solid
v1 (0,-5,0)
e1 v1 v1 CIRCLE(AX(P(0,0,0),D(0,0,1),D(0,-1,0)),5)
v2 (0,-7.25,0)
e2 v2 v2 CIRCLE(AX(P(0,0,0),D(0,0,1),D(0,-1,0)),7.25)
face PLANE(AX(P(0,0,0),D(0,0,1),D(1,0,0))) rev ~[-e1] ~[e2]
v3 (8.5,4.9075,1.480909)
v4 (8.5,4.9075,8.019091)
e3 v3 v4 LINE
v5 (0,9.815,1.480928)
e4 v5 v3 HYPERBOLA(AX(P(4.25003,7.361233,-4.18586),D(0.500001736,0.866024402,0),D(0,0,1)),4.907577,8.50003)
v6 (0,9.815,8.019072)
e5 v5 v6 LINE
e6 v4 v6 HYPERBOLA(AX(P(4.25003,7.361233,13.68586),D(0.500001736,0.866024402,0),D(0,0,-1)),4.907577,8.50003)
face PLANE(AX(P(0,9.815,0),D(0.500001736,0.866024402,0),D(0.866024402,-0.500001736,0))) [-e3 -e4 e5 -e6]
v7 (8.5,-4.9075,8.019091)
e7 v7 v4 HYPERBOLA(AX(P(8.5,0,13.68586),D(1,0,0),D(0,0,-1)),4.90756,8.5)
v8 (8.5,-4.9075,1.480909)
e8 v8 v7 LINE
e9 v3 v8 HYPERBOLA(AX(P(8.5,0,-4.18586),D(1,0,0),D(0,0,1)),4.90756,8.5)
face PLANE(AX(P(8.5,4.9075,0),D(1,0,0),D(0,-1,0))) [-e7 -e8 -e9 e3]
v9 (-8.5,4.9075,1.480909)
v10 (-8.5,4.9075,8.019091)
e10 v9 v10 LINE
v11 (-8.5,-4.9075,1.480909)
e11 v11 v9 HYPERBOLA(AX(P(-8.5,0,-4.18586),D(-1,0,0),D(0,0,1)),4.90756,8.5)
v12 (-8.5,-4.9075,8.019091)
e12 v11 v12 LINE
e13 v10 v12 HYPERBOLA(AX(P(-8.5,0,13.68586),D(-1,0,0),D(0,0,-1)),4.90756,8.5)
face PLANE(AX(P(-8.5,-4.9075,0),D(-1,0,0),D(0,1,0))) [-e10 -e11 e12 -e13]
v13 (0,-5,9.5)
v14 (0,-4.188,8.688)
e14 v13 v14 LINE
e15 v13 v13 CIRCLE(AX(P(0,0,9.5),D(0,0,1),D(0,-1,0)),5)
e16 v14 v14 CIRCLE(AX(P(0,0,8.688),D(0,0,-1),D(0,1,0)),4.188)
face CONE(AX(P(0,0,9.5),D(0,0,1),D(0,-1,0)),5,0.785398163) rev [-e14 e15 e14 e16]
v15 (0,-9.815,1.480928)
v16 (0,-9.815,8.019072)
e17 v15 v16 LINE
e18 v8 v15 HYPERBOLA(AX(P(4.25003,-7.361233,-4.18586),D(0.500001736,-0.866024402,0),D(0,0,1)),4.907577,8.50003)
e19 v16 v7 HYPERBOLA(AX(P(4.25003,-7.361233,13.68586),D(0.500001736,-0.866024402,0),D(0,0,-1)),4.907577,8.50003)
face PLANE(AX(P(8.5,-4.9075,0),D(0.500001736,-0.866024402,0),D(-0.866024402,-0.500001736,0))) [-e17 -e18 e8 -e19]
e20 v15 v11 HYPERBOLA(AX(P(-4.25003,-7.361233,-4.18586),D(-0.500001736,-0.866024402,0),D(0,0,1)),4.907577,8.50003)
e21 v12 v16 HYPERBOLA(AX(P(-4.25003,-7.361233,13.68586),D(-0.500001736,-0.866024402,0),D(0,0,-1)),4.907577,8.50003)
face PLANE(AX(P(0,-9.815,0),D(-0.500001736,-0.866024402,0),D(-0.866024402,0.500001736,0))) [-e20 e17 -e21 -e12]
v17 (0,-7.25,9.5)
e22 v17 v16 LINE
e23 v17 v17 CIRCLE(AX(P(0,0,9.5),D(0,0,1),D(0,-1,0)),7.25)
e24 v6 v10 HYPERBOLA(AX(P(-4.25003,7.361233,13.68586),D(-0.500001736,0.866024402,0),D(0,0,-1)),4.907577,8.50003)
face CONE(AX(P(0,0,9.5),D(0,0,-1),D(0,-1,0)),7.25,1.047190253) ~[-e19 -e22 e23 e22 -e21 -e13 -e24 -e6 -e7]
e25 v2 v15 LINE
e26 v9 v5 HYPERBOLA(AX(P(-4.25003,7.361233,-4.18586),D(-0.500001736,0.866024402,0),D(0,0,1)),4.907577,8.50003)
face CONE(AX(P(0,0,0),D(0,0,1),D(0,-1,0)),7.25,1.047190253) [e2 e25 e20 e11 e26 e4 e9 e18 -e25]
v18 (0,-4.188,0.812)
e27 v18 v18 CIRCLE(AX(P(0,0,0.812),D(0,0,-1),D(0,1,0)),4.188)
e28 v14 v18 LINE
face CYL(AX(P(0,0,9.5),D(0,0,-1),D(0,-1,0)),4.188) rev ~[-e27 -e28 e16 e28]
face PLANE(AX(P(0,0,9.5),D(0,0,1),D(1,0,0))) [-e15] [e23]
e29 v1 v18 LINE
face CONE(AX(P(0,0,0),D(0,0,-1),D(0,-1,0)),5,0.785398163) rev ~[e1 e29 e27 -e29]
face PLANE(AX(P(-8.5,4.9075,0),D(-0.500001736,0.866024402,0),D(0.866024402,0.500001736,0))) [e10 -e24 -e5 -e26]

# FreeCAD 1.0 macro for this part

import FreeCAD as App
import Part
import Sketcher
Q = App.Units.Quantity

doc = App.newDocument("Part")
body = doc.addObject("PartDesign::Body", "Body")

# Sketch on XY plane
sketch1 = body.newObject("Sketcher::SketchObject", "Sketch")
sketch1.AttachmentSupport = (doc.getObject("XY_Plane"), [""])
sketch1.MapMode = "FlatFace"
sketch1.addGeometry(Part.LineSegment(App.Vector(8, 5, 0), App.Vector(0, 10, 0)), False)
sketch1.addGeometry(Part.LineSegment(App.Vector(0, 10, 0), App.Vector(-8, 5, 0)), False)
sketch1.addGeometry(Part.LineSegment(App.Vector(-8, 5, 0), App.Vector(-8, -5, 0)), False)
sketch1.addGeometry(Part.LineSegment(App.Vector(-8, -5, 0), App.Vector(0, -10, 0)), False)
sketch1.addGeometry(Part.LineSegment(App.Vector(0, -10, 0), App.Vector(8, -5, 0)), False)
sketch1.addGeometry(Part.LineSegment(App.Vector(8, -5, 0), App.Vector(8, 5, 0)), False)
sketch1.addConstraint(Sketcher.Constraint("Coincident", 0, 2, 1, 1))
sketch1.addConstraint(Sketcher.Constraint("Coincident", 1, 2, 2, 1))
sketch1.addConstraint(Sketcher.Constraint("Coincident", 2, 2, 3, 1))
sketch1.addConstraint(Sketcher.Constraint("Coincident", 3, 2, 4, 1))
sketch1.addConstraint(Sketcher.Constraint("Coincident", 4, 2, 5, 1))
sketch1.addConstraint(Sketcher.Constraint("Coincident", 5, 2, 0, 1))
sketch1.addConstraint(Sketcher.Constraint("Vertical", 2))
sketch1.addConstraint(Sketcher.Constraint("Vertical", 5))
sketch1.addConstraint(Sketcher.Constraint("Symmetric", 0, 2, 3, 2, -1, 1))
sketch1.addConstraint(Sketcher.Constraint("Symmetric", 1, 2, 4, 2, -1, 1))
sketch1.addConstraint(Sketcher.Constraint("PointOnObject", 0, 2, -2))
sketch1.addConstraint(Sketcher.Constraint("Parallel", 0, 3))
sketch1.addConstraint(Sketcher.Constraint("Horizontal", 2, 2, 4, 2))
sketch1.addConstraint(Sketcher.Constraint("DistanceX", 2, 2, 4, 2, 17.0))
sketch1.addConstraint(Sketcher.Constraint("Angle", 0, Q("150 deg")))
sketch1.addConstraint(Sketcher.Constraint("DistanceY", 2, 2, 2, 1, 9.815))
pad1 = body.newObject("PartDesign::Pad", "Pad")
pad1.Profile = sketch1
pad1.Length = 9.5

# Sketch on XY plane
sketch2 = body.newObject("Sketcher::SketchObject", "Sketch001")
sketch2.AttachmentSupport = (doc.getObject("XY_Plane"), [""])
sketch2.MapMode = "FlatFace"
sketch2.AttachmentOffset = App.Placement(App.Vector(0, 0, 9.5), App.Rotation())
sketch2.addGeometry(Part.Circle(App.Vector(0, 0, 0), App.Vector(0, 0, 1), 4.2), False)
sketch2.addConstraint(Sketcher.Constraint("Coincident", 0, 3, -1, 1))
sketch2.addConstraint(Sketcher.Constraint("Diameter", 0, 8.376))
doc.recompute()
hole = body.newObject("PartDesign::Hole", "Hole")
hole.Profile = sketch2
hole.ThreadType = "None"
hole.Diameter = 8.376
hole.DepthType = "ThroughAll"

# Sketch on YZ plane
sketch3 = body.newObject("Sketcher::SketchObject", "Sketch002")
sketch3.AttachmentSupport = (doc.getObject("YZ_Plane"), [""])
sketch3.MapMode = "FlatFace"
sketch3.addGeometry(Part.LineSegment(App.Vector(0, 10, 0), App.Vector(-5, 10, 0)), False)
sketch3.addGeometry(Part.LineSegment(App.Vector(-5, 10, 0), App.Vector(0, 4, 0)), False)
sketch3.addGeometry(Part.LineSegment(App.Vector(0, 4, 0), App.Vector(0, 10, 0)), False)
sketch3.addConstraint(Sketcher.Constraint("Coincident", 0, 2, 1, 1))
sketch3.addConstraint(Sketcher.Constraint("Coincident", 1, 2, 2, 1))
sketch3.addConstraint(Sketcher.Constraint("Coincident", 2, 2, 0, 1))
sketch3.addConstraint(Sketcher.Constraint("Horizontal", 0))
sketch3.addConstraint(Sketcher.Constraint("Vertical", 2))
sketch3.addConstraint(Sketcher.Constraint("PointOnObject", 1, 2, -2))
sketch3.addConstraint(Sketcher.Constraint("Equal", 0, 2))
sketch3.addConstraint(Sketcher.Constraint("DistanceX", 0, 2, 0, 1, 5.0))
sketch3.addConstraint(Sketcher.Constraint("DistanceY", -1, 1, 0, 2, 9.5))
groove = body.newObject("PartDesign::Groove", "Groove")
groove.Profile = sketch3
groove.ReferenceAxis = (sketch3, ["V_Axis"])
groove.Angle = 360

# Sketch on YZ plane
sketch4 = body.newObject("Sketcher::SketchObject", "Sketch003")
sketch4.AttachmentSupport = (doc.getObject("YZ_Plane"), [""])
sketch4.MapMode = "FlatFace"
sketch4.addGeometry(Part.LineSegment(App.Vector(-12.2, 6.6, 0), App.Vector(-7.2, 9.5, 0)), False)
sketch4.addGeometry(Part.LineSegment(App.Vector(-7.2, 9.5, 0), App.Vector(-12.2, 9.5, 0)), False)
sketch4.addGeometry(Part.LineSegment(App.Vector(-12.2, 9.5, 0), App.Vector(-12.2, 6.6, 0)), False)
sketch4.addConstraint(Sketcher.Constraint("Coincident", 0, 2, 1, 1))
sketch4.addConstraint(Sketcher.Constraint("Coincident", 1, 2, 2, 1))
sketch4.addConstraint(Sketcher.Constraint("Coincident", 2, 2, 0, 1))
sketch4.addConstraint(Sketcher.Constraint("Horizontal", 1))
sketch4.addConstraint(Sketcher.Constraint("Vertical", 2))
sketch4.addConstraint(Sketcher.Constraint("Angle", 0, Q("30.0004 deg")))
sketch4.addConstraint(Sketcher.Constraint("DistanceY", -1, 1, 0, 2, 9.5))
sketch4.addConstraint(Sketcher.Constraint("DistanceX", 1, 2, 1, 1, 5.0))
sketch4.addConstraint(Sketcher.Constraint("DistanceX", 0, 2, -1, 1, 7.25))
groove2 = body.newObject("PartDesign::Groove", "Groove001")
groove2.Profile = sketch4
groove2.ReferenceAxis = (sketch4, ["V_Axis"])
groove2.Angle = 360
doc.recompute()

datumplane = body.newObject("PartDesign::Plane", "DatumPlane")
datumplane.AttachmentSupport = (doc.getObject("XY_Plane"), [""])
datumplane.MapMode = "FlatFace"
datumplane.AttachmentOffset = App.Placement(App.Vector(0, 0, 4.75), App.Rotation())
mirrored = body.newObject("PartDesign::Mirrored", "Mirrored")
mirrored.Originals = [groove2]
mirrored.MirrorPlane = (datumplane, [""])
body.Tip = mirrored

# Sketch on YZ plane
sketch5 = body.newObject("Sketcher::SketchObject", "Sketch004")
sketch5.AttachmentSupport = (doc.getObject("YZ_Plane"), [""])
sketch5.MapMode = "FlatFace"
sketch5.addGeometry(Part.LineSegment(App.Vector(0, 5, 0), App.Vector(-5, 0, 0)), False)
sketch5.addGeometry(Part.LineSegment(App.Vector(-5, 0, 0), App.Vector(0, 0, 0)), False)
sketch5.addGeometry(Part.LineSegment(App.Vector(0, 0, 0), App.Vector(0, 5, 0)), False)
sketch5.addConstraint(Sketcher.Constraint("Coincident", 0, 2, 1, 1))
sketch5.addConstraint(Sketcher.Constraint("Coincident", 1, 2, 2, 1))
sketch5.addConstraint(Sketcher.Constraint("Coincident", 2, 2, 0, 1))
sketch5.addConstraint(Sketcher.Constraint("Horizontal", 1))
sketch5.addConstraint(Sketcher.Constraint("Vertical", 2))
sketch5.addConstraint(Sketcher.Constraint("Coincident", 1, 2, -1, 1))
sketch5.addConstraint(Sketcher.Constraint("Equal", 1, 2))
sketch5.addConstraint(Sketcher.Constraint("DistanceX", 1, 1, 1, 2, 5.0))
groove3 = body.newObject("PartDesign::Groove", "Groove002")
groove3.Profile = sketch5
groove3.ReferenceAxis = (sketch5, ["V_Axis"])
groove3.Angle = 360

doc.recompute()
